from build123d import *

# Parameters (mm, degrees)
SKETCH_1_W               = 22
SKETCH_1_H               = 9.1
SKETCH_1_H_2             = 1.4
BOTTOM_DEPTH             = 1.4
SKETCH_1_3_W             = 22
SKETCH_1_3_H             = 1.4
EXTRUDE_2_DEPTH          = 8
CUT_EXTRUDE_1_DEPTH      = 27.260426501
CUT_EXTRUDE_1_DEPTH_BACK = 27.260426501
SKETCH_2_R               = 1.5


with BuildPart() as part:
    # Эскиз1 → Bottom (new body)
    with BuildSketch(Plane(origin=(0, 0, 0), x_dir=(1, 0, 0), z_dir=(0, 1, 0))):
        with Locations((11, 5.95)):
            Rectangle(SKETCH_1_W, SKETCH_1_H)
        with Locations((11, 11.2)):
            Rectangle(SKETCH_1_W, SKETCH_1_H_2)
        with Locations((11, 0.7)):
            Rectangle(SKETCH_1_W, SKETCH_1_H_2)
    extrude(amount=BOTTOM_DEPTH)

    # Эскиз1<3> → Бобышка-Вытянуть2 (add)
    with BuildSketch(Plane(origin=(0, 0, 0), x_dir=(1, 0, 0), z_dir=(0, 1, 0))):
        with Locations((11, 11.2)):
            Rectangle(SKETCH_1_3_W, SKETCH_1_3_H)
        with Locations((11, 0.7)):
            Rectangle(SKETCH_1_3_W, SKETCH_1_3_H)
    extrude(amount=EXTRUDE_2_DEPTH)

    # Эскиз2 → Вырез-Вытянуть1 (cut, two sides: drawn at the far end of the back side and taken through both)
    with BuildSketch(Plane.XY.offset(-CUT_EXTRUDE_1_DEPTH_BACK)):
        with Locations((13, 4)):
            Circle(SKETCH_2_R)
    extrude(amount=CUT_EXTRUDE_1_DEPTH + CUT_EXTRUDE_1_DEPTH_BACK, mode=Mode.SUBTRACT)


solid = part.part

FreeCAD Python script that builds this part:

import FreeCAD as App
import Part
import Sketcher
from FreeCAD import Vector
Q = App.Units.Quantity

doc = App.newDocument("Part")
body = doc.addObject("PartDesign::Body", "Body")

sketch1 = body.newObject("Sketcher::SketchObject", "Sketch")
sketch1.AttachmentSupport = (doc.getObject("XZ_Plane"), [""])
sketch1.MapMode = "FlatFace"
sketch1.addGeometry([
    Part.LineSegment(Vector(22, -12, 0), Vector(0, -12, 0)),
    Part.LineSegment(Vector(0, -12, 0), Vector(0, 0, 0)),
    Part.LineSegment(Vector(0, 0, 0), Vector(22, 0, 0)),
    Part.LineSegment(Vector(22, 0, 0), Vector(22, -12, 0)),
], False)
sketch1.addConstraint([
    Sketcher.Constraint("Coincident", 0, 2, 1, 1),
    Sketcher.Constraint("Coincident", 1, 2, 2, 1),
    Sketcher.Constraint("Coincident", 2, 2, 3, 1),
    Sketcher.Constraint("Coincident", 3, 2, 0, 1),
    Sketcher.Constraint("Horizontal", 0),
    Sketcher.Constraint("Vertical", 1),
    Sketcher.Constraint("Horizontal", 2),
    Sketcher.Constraint("Vertical", 3),
    Sketcher.Constraint("Coincident", 1, 2, -1, 1),
    Sketcher.Constraint("DistanceX", 0, 2, 0, 1, Q("22 mm")),
    Sketcher.Constraint("DistanceY", 1, 1, 1, 2, Q("11.9 mm")),
])
pad1 = body.newObject("PartDesign::Pad", "Pad")
pad1.Profile = sketch1
pad1.Length = 1.4
pad1.Reversed = True

sketch2 = body.newObject("Sketcher::SketchObject", "Sketch001")
sketch2.AttachmentSupport = (doc.getObject("XZ_Plane"), [""])
sketch2.MapMode = "FlatFace"
sketch2.addGeometry([
    Part.LineSegment(Vector(0, -11.9, 0), Vector(0, -10.5, 0)),
    Part.LineSegment(Vector(0, -10.5, 0), Vector(22, -10.5, 0)),
    Part.LineSegment(Vector(22, -10.5, 0), Vector(22, -11.9, 0)),
    Part.LineSegment(Vector(22, -11.9, 0), Vector(0, -11.9, 0)),
    Part.LineSegment(Vector(0, -1.4, 0), Vector(0, 0, 0)),
    Part.LineSegment(Vector(0, 0, 0), Vector(22, 0, 0)),
    Part.LineSegment(Vector(22, 0, 0), Vector(22, -1.4, 0)),
    Part.LineSegment(Vector(22, -1.4, 0), Vector(0, -1.4, 0)),
], False)
sketch2.addConstraint([
    Sketcher.Constraint("Coincident", 0, 2, 1, 1),
    Sketcher.Constraint("Coincident", 1, 2, 2, 1),
    Sketcher.Constraint("Coincident", 2, 2, 3, 1),
    Sketcher.Constraint("Coincident", 3, 2, 0, 1),
    Sketcher.Constraint("Coincident", 4, 2, 5, 1),
    Sketcher.Constraint("Coincident", 5, 2, 6, 1),
    Sketcher.Constraint("Coincident", 6, 2, 7, 1),
    Sketcher.Constraint("Coincident", 7, 2, 4, 1),
    Sketcher.Constraint("Vertical", 0),
    Sketcher.Constraint("Horizontal", 1),
    Sketcher.Constraint("Vertical", 2),
    Sketcher.Constraint("Horizontal", 3),
    Sketcher.Constraint("Vertical", 4),
    Sketcher.Constraint("Horizontal", 5),
    Sketcher.Constraint("Vertical", 6),
    Sketcher.Constraint("Horizontal", 7),
    Sketcher.Constraint("Coincident", 4, 2, -1, 1),
    Sketcher.Constraint("PointOnObject", 0, 2, -2),
    Sketcher.Constraint("Vertical", 2, 2, 5, 2),
    Sketcher.Constraint("Equal", 2, 4),
    Sketcher.Constraint("DistanceX", 1, 1, 1, 2, Q("22 mm")),
    Sketcher.Constraint("DistanceY", 0, 1, 0, 2, Q("1.4 mm")),
    Sketcher.Constraint("DistanceY", 0, 2, -1, 1, Q("10.5 mm")),
])
pad2 = body.newObject("PartDesign::Pad", "Pad001")
pad2.Profile = sketch2
pad2.Length = 8
pad2.Reversed = True

sketch3 = body.newObject("Sketcher::SketchObject", "Sketch002")
sketch3.AttachmentSupport = (doc.getObject("XY_Plane"), [""])
sketch3.MapMode = "FlatFace"
sketch3.addGeometry(Part.Circle(Vector(13, 4, 0), Vector(0, 0, 1), 1.5), False)
sketch3.addConstraint([
    Sketcher.Constraint("Diameter", 0, Q("3 mm")),
    Sketcher.Constraint("DistanceX", -1, 1, 0, 3, Q("13 mm")),
    Sketcher.Constraint("DistanceY", -1, 1, 0, 3, Q("4 mm")),
])
pocket1 = body.newObject("PartDesign::Pocket", "Pocket")
pocket1.Profile = sketch3
pocket1.Type = "ThroughAll"
pocket1.Midplane = True

doc.recompute()
